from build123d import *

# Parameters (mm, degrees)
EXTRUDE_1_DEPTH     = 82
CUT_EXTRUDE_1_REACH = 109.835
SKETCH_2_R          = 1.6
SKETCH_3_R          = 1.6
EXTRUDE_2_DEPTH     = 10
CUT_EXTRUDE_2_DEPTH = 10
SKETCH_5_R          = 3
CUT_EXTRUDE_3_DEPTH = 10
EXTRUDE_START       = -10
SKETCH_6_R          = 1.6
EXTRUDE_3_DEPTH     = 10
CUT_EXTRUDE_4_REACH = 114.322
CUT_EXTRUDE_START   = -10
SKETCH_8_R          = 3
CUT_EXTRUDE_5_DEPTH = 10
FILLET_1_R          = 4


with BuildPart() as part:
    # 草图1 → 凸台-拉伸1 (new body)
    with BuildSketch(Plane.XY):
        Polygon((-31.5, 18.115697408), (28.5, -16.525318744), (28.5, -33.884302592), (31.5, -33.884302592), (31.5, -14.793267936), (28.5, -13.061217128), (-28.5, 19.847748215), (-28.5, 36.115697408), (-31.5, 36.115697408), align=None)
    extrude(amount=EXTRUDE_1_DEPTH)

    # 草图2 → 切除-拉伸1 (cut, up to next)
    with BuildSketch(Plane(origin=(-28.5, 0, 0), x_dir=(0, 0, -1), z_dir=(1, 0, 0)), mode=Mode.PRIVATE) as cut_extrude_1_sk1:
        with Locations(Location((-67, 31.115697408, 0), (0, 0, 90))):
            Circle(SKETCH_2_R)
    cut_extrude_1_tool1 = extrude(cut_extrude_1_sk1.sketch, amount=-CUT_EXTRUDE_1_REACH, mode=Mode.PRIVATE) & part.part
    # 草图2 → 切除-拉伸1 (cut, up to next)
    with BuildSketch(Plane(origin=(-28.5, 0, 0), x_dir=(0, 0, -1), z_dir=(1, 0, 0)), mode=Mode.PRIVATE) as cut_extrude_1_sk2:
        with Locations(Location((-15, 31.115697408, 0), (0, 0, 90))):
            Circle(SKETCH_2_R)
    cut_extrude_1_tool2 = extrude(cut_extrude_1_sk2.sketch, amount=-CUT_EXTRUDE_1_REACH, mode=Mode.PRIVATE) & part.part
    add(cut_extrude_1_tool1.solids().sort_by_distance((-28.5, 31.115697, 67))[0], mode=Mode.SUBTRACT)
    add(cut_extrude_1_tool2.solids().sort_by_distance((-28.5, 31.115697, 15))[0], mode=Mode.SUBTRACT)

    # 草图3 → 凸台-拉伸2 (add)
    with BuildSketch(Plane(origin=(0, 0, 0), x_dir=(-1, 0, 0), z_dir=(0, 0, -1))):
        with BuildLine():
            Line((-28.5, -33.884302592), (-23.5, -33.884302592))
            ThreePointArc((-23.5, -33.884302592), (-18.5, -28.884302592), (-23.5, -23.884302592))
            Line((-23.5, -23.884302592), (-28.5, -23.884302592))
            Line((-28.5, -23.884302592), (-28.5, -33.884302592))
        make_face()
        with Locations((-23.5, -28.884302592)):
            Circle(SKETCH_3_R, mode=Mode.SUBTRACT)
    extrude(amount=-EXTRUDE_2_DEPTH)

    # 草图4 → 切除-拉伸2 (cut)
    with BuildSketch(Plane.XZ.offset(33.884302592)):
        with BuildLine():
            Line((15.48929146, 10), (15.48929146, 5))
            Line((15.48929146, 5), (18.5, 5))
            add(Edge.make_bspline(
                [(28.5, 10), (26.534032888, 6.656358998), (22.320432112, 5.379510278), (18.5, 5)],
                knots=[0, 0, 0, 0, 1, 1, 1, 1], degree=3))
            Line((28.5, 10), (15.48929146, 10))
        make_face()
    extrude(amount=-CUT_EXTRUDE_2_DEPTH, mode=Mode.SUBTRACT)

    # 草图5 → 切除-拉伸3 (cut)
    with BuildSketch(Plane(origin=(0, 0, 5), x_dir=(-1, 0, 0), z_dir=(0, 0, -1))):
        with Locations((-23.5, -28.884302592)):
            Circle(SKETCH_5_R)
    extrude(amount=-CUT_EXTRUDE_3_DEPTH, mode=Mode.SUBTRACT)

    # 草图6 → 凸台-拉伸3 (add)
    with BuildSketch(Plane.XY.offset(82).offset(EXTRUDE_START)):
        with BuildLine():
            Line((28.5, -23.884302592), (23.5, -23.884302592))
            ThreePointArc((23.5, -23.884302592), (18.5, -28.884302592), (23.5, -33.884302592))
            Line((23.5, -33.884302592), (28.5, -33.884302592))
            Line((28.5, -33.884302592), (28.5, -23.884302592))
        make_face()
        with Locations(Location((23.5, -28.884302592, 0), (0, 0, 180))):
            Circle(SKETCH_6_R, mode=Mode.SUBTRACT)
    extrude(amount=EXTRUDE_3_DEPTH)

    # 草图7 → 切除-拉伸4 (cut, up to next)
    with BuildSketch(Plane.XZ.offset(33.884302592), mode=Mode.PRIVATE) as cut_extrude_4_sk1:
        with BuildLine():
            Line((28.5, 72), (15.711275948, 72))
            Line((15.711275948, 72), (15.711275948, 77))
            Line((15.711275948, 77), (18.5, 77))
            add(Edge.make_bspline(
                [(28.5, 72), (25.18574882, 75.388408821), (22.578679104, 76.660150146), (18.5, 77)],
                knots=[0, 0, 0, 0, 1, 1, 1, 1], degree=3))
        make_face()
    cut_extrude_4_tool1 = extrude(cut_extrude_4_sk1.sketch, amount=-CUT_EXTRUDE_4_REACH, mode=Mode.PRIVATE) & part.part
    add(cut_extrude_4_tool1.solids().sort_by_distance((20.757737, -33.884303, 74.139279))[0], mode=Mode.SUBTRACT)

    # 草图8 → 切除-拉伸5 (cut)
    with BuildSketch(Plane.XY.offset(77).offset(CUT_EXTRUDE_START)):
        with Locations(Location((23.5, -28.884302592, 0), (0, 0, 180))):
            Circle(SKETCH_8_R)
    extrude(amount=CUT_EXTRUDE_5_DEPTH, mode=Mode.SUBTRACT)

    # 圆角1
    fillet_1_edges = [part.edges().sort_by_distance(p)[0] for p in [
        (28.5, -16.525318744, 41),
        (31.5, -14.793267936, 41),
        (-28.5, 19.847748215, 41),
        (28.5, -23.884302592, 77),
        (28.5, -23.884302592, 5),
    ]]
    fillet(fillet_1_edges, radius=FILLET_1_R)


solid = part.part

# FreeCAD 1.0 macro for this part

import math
import FreeCAD as App
import Part
import Sketcher
Q = App.Units.Quantity


def edges_at(feature, points):
    """Names of the edges that pass closest to the given points."""
    edges = feature.Shape.Edges
    near = lambda p: min(range(len(edges)), key=lambda i: edges[i].distToShape(Part.Vertex(*p))[0])
    return sorted({f"Edge{near(p) + 1}" for p in points})


def add_polygon(sketch, points):
    """Adds a closed chain of lines whose ends are joined by coincident constraints."""
    first, n = sketch.GeometryCount, len(points)
    for a, b in zip(points, points[1:] + points[:1]):
        sketch.addGeometry(Part.LineSegment(App.Vector(*a, 0), App.Vector(*b, 0)), False)
    for i in range(n):
        sketch.addConstraint(Sketcher.Constraint("Coincident", first + i, 2, first + (i + 1) % n, 1))

doc = App.newDocument("Part")
body = doc.addObject("PartDesign::Body", "Body")

# Sketch on XY plane
sketch1 = body.newObject("Sketcher::SketchObject", "Sketch")
sketch1.AttachmentSupport = (doc.getObject("XY_Plane"), [""])
sketch1.MapMode = "FlatFace"
add_polygon(sketch1, [(-31.5, 18.1), (28.5, -16.5), (28.5, -33.9), (31.5, -33.9), (31.5, -14.8), (28.5, -13.1), (-28.5, 19.8), (-28.5, 36.1), (-31.5, 36.1)])  # lines 0-8
sketch1.addConstraint(Sketcher.Constraint("Vertical", 1))
sketch1.addConstraint(Sketcher.Constraint("Horizontal", 2))
sketch1.addConstraint(Sketcher.Constraint("Vertical", 3))
sketch1.addConstraint(Sketcher.Constraint("Vertical", 6))
sketch1.addConstraint(Sketcher.Constraint("Horizontal", 7))
sketch1.addConstraint(Sketcher.Constraint("Vertical", 8))
sketch1.addConstraint(Sketcher.Constraint("Parallel", 0, 4))
sketch1.addConstraint(Sketcher.Constraint("Parallel", 4, 5))
sketch1.addConstraint(Sketcher.Constraint("Vertical", 1, 2, 4, 2))
sketch1.addConstraint(Sketcher.Constraint("Equal", 2, 7))
sketch1.addConstraint(Sketcher.Constraint("DistanceX", 2, 1, 2, 2, Q("3 mm")))
sketch1.addConstraint(Sketcher.Constraint("DistanceY", 8, 2, 8, 1, Q("18 mm")))
sketch1.addConstraint(Sketcher.Constraint("Angle", 0, Q("-30 deg")))
sketch1.addConstraint(Sketcher.Constraint("DistanceX", 5, 2, 4, 2, Q("57 mm")))
sketch1.addConstraint(Sketcher.Constraint("DistanceY", 1, 2, 6, 2, Q("70 mm")))
sketch1.addConstraint(Sketcher.Constraint("DistanceX", -1, 1, 0, 2, Q("28.5 mm")))
sketch1.addConstraint(Sketcher.Constraint("DistanceY", 6, 1, 6, 2, Q("16.267949 mm")))
sketch1.addConstraint(Sketcher.Constraint("DistanceY", 0, 2, -1, 1, Q("16.525319 mm")))
pad1 = body.newObject("PartDesign::Pad", "Pad")
pad1.Profile = sketch1
pad1.Length = 82

# Sketch on YZ plane
sketch2 = body.newObject("Sketcher::SketchObject", "Sketch001")
sketch2.AttachmentSupport = (doc.getObject("YZ_Plane"), [""])
sketch2.MapMode = "FlatFace"
sketch2.AttachmentOffset = App.Placement(App.Vector(0, 0, -28.5), App.Rotation())
sketch2.addGeometry(Part.Circle(App.Vector(31.1, 67, 0), App.Vector(0, 0, 1), 1.6), False)
sketch2.addConstraint(Sketcher.Constraint("Diameter", 0, Q("3.2 mm")))
sketch2.addConstraint(Sketcher.Constraint("DistanceY", -1, 1, 0, 3, Q("67 mm")))
sketch2.addConstraint(Sketcher.Constraint("DistanceX", -1, 1, 0, 3, Q("31.115697 mm")))
pocket1 = body.newObject("PartDesign::Pocket", "Pocket")
pocket1.Profile = sketch2
pocket1.Type = "UpToFirst"

# Sketch on YZ plane
sketch3 = body.newObject("Sketcher::SketchObject", "Sketch002")
sketch3.AttachmentSupport = (doc.getObject("YZ_Plane"), [""])
sketch3.MapMode = "FlatFace"
sketch3.AttachmentOffset = App.Placement(App.Vector(0, 0, -28.5), App.Rotation())
sketch3.addGeometry(Part.Circle(App.Vector(31.1, 15, 0), App.Vector(0, 0, 1), 1.6), False)
sketch3.addConstraint(Sketcher.Constraint("Diameter", 0, Q("3.2 mm")))
sketch3.addConstraint(Sketcher.Constraint("DistanceY", -1, 1, 0, 3, Q("15 mm")))
sketch3.addConstraint(Sketcher.Constraint("DistanceX", -1, 1, 0, 3, Q("31.115697 mm")))
pocket2 = body.newObject("PartDesign::Pocket", "Pocket001")
pocket2.Profile = sketch3
pocket2.Type = "UpToFirst"

# Sketch on XY plane
sketch4 = body.newObject("Sketcher::SketchObject", "Sketch003")
sketch4.AttachmentSupport = (doc.getObject("XY_Plane"), [""])
sketch4.MapMode = "FlatFace"
sketch4.addGeometry(Part.LineSegment(App.Vector(28.5, -33.9, 0), App.Vector(23.5, -33.9, 0)), False)
sketch4.addGeometry(Part.ArcOfCircle(Part.Circle(App.Vector(23.5, -28.9, 0), App.Vector(0, 0, 1), 5), math.radians(90), math.radians(270)), False)
sketch4.addGeometry(Part.LineSegment(App.Vector(23.5, -23.9, 0), App.Vector(28.5, -23.9, 0)), False)
sketch4.addGeometry(Part.LineSegment(App.Vector(28.5, -23.9, 0), App.Vector(28.5, -33.9, 0)), False)
sketch4.addGeometry(Part.Circle(App.Vector(23.5, -28.9, 0), App.Vector(0, 0, 1), 1.6), False)
sketch4.addConstraint(Sketcher.Constraint("Tangent", 0, 2, 1, 2))
sketch4.addConstraint(Sketcher.Constraint("Tangent", 1, 1, 2, 1))
sketch4.addConstraint(Sketcher.Constraint("Coincident", 2, 2, 3, 1))
sketch4.addConstraint(Sketcher.Constraint("Coincident", 3, 2, 0, 1))
sketch4.addConstraint(Sketcher.Constraint("Horizontal", 0))
sketch4.addConstraint(Sketcher.Constraint("Horizontal", 2))
sketch4.addConstraint(Sketcher.Constraint("Vertical", 3))
sketch4.addConstraint(Sketcher.Constraint("Coincident", 4, 3, 1, 3))
sketch4.addConstraint(Sketcher.Constraint("Radius", 1, Q("5 mm")))
sketch4.addConstraint(Sketcher.Constraint("Diameter", 4, Q("3.2 mm")))
sketch4.addConstraint(Sketcher.Constraint("DistanceX", 0, 2, 0, 1, Q("5 mm")))
sketch4.addConstraint(Sketcher.Constraint("DistanceX", -1, 1, 1, 3, Q("23.5 mm")))
sketch4.addConstraint(Sketcher.Constraint("DistanceY", 1, 3, -1, 1, Q("28.884303 mm")))
pad2 = body.newObject("PartDesign::Pad", "Pad001")
pad2.Profile = sketch4
pad2.Length = 10

# Sketch on XZ plane
sketch5 = body.newObject("Sketcher::SketchObject", "Sketch004")
sketch5.AttachmentSupport = (doc.getObject("XZ_Plane"), [""])
sketch5.MapMode = "FlatFace"
sketch5.AttachmentOffset = App.Placement(App.Vector(0, 0, 33.884303), App.Rotation())
sketch5.addGeometry(Part.LineSegment(App.Vector(15.489291, 10, 0), App.Vector(15.489291, 5, 0)), False)
sketch5.addGeometry(Part.LineSegment(App.Vector(15.489291, 5, 0), App.Vector(18.5, 5, 0)), False)
sketch5.addGeometry(Part.BSplineCurve([App.Vector(28.5, 10, 0), App.Vector(26.534033, 6.656359, 0), App.Vector(22.320432, 5.37951, 0), App.Vector(18.5, 5, 0)], [4, 4], [0, 1], False, 3, [1, 1, 1, 1], False), False)
sketch5.addGeometry(Part.LineSegment(App.Vector(28.5, 10, 0), App.Vector(15.489291, 10, 0)), False)
sketch5.addConstraint(Sketcher.Constraint("Block", 2))
sketch5.addConstraint(Sketcher.Constraint("Coincident", 0, 2, 1, 1))
sketch5.addConstraint(Sketcher.Constraint("Coincident", 1, 2, 2, 2))
sketch5.addConstraint(Sketcher.Constraint("Coincident", 2, 1, 3, 1))
sketch5.addConstraint(Sketcher.Constraint("Coincident", 3, 2, 0, 1))
sketch5.addConstraint(Sketcher.Constraint("Vertical", 0))
sketch5.addConstraint(Sketcher.Constraint("Horizontal", 1))
sketch5.addConstraint(Sketcher.Constraint("Horizontal", 3))
sketch5.addConstraint(Sketcher.Constraint("DistanceX", 1, 1, 1, 2, Q("3.010709 mm")))
pocket3 = body.newObject("PartDesign::Pocket", "Pocket002")
pocket3.Profile = sketch5
pocket3.Length = 10

# Sketch on XY plane
sketch6 = body.newObject("Sketcher::SketchObject", "Sketch005")
sketch6.AttachmentSupport = (doc.getObject("XY_Plane"), [""])
sketch6.MapMode = "FlatFace"
sketch6.AttachmentOffset = App.Placement(App.Vector(0, 0, 5), App.Rotation())
sketch6.addGeometry(Part.Circle(App.Vector(23.5, -28.9, 0), App.Vector(0, 0, 1), 3), False)
sketch6.addConstraint(Sketcher.Constraint("Diameter", 0, Q("6 mm")))
sketch6.addConstraint(Sketcher.Constraint("DistanceX", -1, 1, 0, 3, Q("23.5 mm")))
sketch6.addConstraint(Sketcher.Constraint("DistanceY", 0, 3, -1, 1, Q("28.884303 mm")))
pocket4 = body.newObject("PartDesign::Pocket", "Pocket003")
pocket4.Profile = sketch6
pocket4.Length = 10
pocket4.Reversed = True

# Sketch on XY plane
sketch7 = body.newObject("Sketcher::SketchObject", "Sketch006")
sketch7.AttachmentSupport = (doc.getObject("XY_Plane"), [""])
sketch7.MapMode = "FlatFace"
sketch7.AttachmentOffset = App.Placement(App.Vector(0, 0, 72), App.Rotation())
sketch7.addGeometry(Part.LineSegment(App.Vector(28.5, -23.9, 0), App.Vector(23.5, -23.9, 0)), False)
sketch7.addGeometry(Part.ArcOfCircle(Part.Circle(App.Vector(23.5, -28.9, 0), App.Vector(0, 0, 1), 5), math.radians(90), math.radians(270)), False)
sketch7.addGeometry(Part.LineSegment(App.Vector(23.5, -33.9, 0), App.Vector(28.5, -33.9, 0)), False)
sketch7.addGeometry(Part.LineSegment(App.Vector(28.5, -33.9, 0), App.Vector(28.5, -23.9, 0)), False)
sketch7.addGeometry(Part.Circle(App.Vector(23.5, -28.9, 0), App.Vector(0, 0, 1), 1.6), False)
sketch7.addConstraint(Sketcher.Constraint("Tangent", 0, 2, 1, 1))
sketch7.addConstraint(Sketcher.Constraint("Tangent", 1, 2, 2, 1))
sketch7.addConstraint(Sketcher.Constraint("Coincident", 2, 2, 3, 1))
sketch7.addConstraint(Sketcher.Constraint("Coincident", 3, 2, 0, 1))
sketch7.addConstraint(Sketcher.Constraint("Horizontal", 0))
sketch7.addConstraint(Sketcher.Constraint("Horizontal", 2))
sketch7.addConstraint(Sketcher.Constraint("Vertical", 3))
sketch7.addConstraint(Sketcher.Constraint("Coincident", 4, 3, 1, 3))
sketch7.addConstraint(Sketcher.Constraint("Radius", 1, Q("5 mm")))
sketch7.addConstraint(Sketcher.Constraint("Diameter", 4, Q("3.2 mm")))
sketch7.addConstraint(Sketcher.Constraint("DistanceX", 0, 2, 0, 1, Q("5 mm")))
sketch7.addConstraint(Sketcher.Constraint("DistanceX", -1, 1, 1, 3, Q("23.5 mm")))
sketch7.addConstraint(Sketcher.Constraint("DistanceY", 1, 3, -1, 1, Q("28.884303 mm")))
pad3 = body.newObject("PartDesign::Pad", "Pad002")
pad3.Profile = sketch7
pad3.Length = 10

# Sketch on XZ plane
sketch8 = body.newObject("Sketcher::SketchObject", "Sketch007")
sketch8.AttachmentSupport = (doc.getObject("XZ_Plane"), [""])
sketch8.MapMode = "FlatFace"
sketch8.AttachmentOffset = App.Placement(App.Vector(0, 0, 33.884303), App.Rotation())
sketch8.addGeometry(Part.LineSegment(App.Vector(15.711276, 72, 0), App.Vector(28.5, 72, 0)), False)
sketch8.addGeometry(Part.BSplineCurve([App.Vector(28.5, 72, 0), App.Vector(25.185749, 75.388409, 0), App.Vector(22.578679, 76.66015, 0), App.Vector(18.5, 77, 0)], [4, 4], [0, 1], False, 3, [1, 1, 1, 1], False), False)
sketch8.addGeometry(Part.LineSegment(App.Vector(18.5, 77, 0), App.Vector(15.711276, 77, 0)), False)
sketch8.addGeometry(Part.LineSegment(App.Vector(15.711276, 77, 0), App.Vector(15.711276, 72, 0)), False)
sketch8.addConstraint(Sketcher.Constraint("Block", 1))
sketch8.addConstraint(Sketcher.Constraint("Coincident", 0, 2, 1, 1))
sketch8.addConstraint(Sketcher.Constraint("Coincident", 1, 2, 2, 1))
sketch8.addConstraint(Sketcher.Constraint("Coincident", 2, 2, 3, 1))
sketch8.addConstraint(Sketcher.Constraint("Coincident", 3, 2, 0, 1))
sketch8.addConstraint(Sketcher.Constraint("Horizontal", 0))
sketch8.addConstraint(Sketcher.Constraint("Horizontal", 2))
sketch8.addConstraint(Sketcher.Constraint("Vertical", 3))
sketch8.addConstraint(Sketcher.Constraint("DistanceX", 0, 1, 0, 2, Q("12.788724 mm")))
pocket5 = body.newObject("PartDesign::Pocket", "Pocket004")
pocket5.Profile = sketch8
pocket5.Length = 10

# Sketch on XY plane
sketch9 = body.newObject("Sketcher::SketchObject", "Sketch008")
sketch9.AttachmentSupport = (doc.getObject("XY_Plane"), [""])
sketch9.MapMode = "FlatFace"
sketch9.AttachmentOffset = App.Placement(App.Vector(0, 0, 67), App.Rotation())
sketch9.addGeometry(Part.Circle(App.Vector(23.5, -28.9, 0), App.Vector(0, 0, 1), 3), False)
sketch9.addConstraint(Sketcher.Constraint("Diameter", 0, Q("6 mm")))
sketch9.addConstraint(Sketcher.Constraint("DistanceX", -1, 1, 0, 3, Q("23.5 mm")))
sketch9.addConstraint(Sketcher.Constraint("DistanceY", 0, 3, -1, 1, Q("28.884303 mm")))
pocket6 = body.newObject("PartDesign::Pocket", "Pocket005")
pocket6.Profile = sketch9
pocket6.Length = 10
pocket6.Reversed = True
doc.recompute()

fillet = body.newObject("PartDesign::Fillet", "Fillet")
fillet.Base = (pocket6, edges_at(pocket6, [
    (28.5, -16.525, 41),
    (31.5, -14.793, 41),
    (-28.5, 19.848, 41),
    (28.5, -23.884, 77),
    (28.5, -23.884, 5),
]))
fillet.Radius = 4

doc.recompute()
